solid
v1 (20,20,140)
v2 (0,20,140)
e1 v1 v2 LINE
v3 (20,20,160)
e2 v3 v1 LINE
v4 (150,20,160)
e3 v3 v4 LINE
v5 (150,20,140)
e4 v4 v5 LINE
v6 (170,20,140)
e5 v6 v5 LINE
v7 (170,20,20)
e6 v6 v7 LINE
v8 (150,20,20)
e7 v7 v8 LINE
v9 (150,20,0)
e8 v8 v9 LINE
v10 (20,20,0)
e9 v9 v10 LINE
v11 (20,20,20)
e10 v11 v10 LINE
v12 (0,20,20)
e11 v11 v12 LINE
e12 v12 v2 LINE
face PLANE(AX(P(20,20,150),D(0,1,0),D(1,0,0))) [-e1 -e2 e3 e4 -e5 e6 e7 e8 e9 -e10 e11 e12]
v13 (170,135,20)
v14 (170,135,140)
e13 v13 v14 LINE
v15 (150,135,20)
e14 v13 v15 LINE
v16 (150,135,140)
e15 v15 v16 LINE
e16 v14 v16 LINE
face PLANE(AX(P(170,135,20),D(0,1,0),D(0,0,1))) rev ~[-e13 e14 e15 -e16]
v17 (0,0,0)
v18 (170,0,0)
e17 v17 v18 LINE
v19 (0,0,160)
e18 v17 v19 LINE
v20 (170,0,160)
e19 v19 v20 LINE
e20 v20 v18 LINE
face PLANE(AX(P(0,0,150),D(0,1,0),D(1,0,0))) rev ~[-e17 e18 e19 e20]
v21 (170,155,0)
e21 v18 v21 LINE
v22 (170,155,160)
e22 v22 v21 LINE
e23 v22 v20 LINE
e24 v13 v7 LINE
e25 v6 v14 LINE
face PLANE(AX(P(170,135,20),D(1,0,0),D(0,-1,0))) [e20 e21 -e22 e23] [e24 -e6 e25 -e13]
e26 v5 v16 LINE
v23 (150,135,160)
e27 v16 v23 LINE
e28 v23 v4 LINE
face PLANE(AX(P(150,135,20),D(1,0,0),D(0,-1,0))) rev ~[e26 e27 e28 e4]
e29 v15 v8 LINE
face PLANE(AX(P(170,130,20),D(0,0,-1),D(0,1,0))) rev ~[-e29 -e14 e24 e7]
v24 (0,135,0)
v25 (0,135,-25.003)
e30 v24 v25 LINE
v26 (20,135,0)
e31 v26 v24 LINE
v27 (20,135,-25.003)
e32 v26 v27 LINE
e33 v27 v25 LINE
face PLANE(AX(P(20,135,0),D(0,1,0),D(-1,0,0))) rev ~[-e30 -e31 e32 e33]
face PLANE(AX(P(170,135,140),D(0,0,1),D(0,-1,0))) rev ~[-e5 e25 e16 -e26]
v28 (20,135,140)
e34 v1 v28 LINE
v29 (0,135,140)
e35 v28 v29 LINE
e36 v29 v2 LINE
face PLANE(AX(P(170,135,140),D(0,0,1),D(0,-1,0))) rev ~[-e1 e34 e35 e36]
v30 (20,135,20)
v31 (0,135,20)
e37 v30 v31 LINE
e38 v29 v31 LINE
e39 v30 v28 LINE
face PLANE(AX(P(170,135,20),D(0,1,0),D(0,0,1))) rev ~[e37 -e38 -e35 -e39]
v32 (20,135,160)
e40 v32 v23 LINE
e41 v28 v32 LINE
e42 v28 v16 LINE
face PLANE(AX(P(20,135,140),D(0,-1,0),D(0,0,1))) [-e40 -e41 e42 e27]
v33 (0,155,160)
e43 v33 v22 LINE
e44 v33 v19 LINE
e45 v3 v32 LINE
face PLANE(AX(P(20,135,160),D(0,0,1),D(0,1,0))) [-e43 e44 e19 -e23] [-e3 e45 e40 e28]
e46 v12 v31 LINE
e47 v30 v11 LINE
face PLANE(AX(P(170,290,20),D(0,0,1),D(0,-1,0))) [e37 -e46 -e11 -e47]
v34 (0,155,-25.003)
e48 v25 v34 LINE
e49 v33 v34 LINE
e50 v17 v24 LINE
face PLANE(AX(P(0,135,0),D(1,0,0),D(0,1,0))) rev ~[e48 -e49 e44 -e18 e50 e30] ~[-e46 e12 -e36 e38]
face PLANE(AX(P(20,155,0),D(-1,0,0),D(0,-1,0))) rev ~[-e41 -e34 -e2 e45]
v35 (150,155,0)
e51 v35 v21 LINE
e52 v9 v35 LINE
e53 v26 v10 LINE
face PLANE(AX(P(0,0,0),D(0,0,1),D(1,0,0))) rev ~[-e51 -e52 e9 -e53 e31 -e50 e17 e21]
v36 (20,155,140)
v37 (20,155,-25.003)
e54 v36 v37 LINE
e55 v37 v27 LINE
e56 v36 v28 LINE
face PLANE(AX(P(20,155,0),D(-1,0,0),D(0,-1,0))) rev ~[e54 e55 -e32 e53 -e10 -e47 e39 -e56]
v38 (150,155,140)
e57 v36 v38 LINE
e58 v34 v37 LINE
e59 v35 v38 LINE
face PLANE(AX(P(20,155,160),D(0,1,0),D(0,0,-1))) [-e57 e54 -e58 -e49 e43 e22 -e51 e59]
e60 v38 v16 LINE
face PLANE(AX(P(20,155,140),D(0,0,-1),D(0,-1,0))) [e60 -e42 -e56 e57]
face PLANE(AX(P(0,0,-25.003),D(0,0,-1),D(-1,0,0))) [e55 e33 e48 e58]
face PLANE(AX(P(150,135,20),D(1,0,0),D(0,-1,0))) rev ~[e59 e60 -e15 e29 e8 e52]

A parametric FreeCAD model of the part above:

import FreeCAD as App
import Part
import Sketcher


def add_polygon(sketch, points):
    """Adds a closed chain of lines whose ends are joined by coincident constraints."""
    first, n = sketch.GeometryCount, len(points)
    for a, b in zip(points, points[1:] + points[:1]):
        sketch.addGeometry(Part.LineSegment(App.Vector(*a, 0), App.Vector(*b, 0)), False)
    for i in range(n):
        sketch.addConstraint(Sketcher.Constraint("Coincident", first + i, 2, first + (i + 1) % n, 1))

doc = App.newDocument("Part")
body = doc.addObject("PartDesign::Body", "Body")

# Sketch on XY plane
sketch1 = body.newObject("Sketcher::SketchObject", "Sketch")
sketch1.AttachmentSupport = (doc.getObject("XY_Plane"), [""])
sketch1.MapMode = "FlatFace"
add_polygon(sketch1, [(0, 310), (0, 0), (170, 0), (170, 310)])  # lines 0-3
sketch1.addConstraint(Sketcher.Constraint("Vertical", 0))
sketch1.addConstraint(Sketcher.Constraint("Horizontal", 1))
sketch1.addConstraint(Sketcher.Constraint("Vertical", 2))
sketch1.addConstraint(Sketcher.Constraint("Horizontal", 3))
sketch1.addConstraint(Sketcher.Constraint("Coincident", 0, 2, -1, 1))
sketch1.addConstraint(Sketcher.Constraint("DistanceX", 1, 1, 1, 2, 170.0))
sketch1.addConstraint(Sketcher.Constraint("DistanceY", 0, 2, 0, 1, 310.0))
pad1 = body.newObject("PartDesign::Pad", "Pad")
pad1.Profile = sketch1
pad1.Length = 150

# Sketch on YZ plane
sketch2 = body.newObject("Sketcher::SketchObject", "Sketch001")
sketch2.AttachmentSupport = (doc.getObject("YZ_Plane"), [""])
sketch2.MapMode = "FlatFace"
sketch2.AttachmentOffset = App.Placement(App.Vector(0, 0, 170), App.Rotation())
add_polygon(sketch2, [(290, 20), (290, 130), (20, 130), (20, 20)])  # lines 0-3
sketch2.addConstraint(Sketcher.Constraint("Vertical", 0))
sketch2.addConstraint(Sketcher.Constraint("Horizontal", 1))
sketch2.addConstraint(Sketcher.Constraint("Vertical", 2))
sketch2.addConstraint(Sketcher.Constraint("Horizontal", 3))
sketch2.addConstraint(Sketcher.Constraint("DistanceX", -1, 1, 1, 2, 20.0))
sketch2.addConstraint(Sketcher.Constraint("DistanceY", -1, 1, 2, 2, 20.0))
sketch2.addConstraint(Sketcher.Constraint("DistanceX", 1, 2, 1, 1, 270.0))
sketch2.addConstraint(Sketcher.Constraint("DistanceY", 0, 1, 0, 2, 110.0))
pocket1 = body.newObject("PartDesign::Pocket", "Pocket")
pocket1.Profile = sketch2
pocket1.Length = 900

# Sketch on XY plane
sketch3 = body.newObject("Sketcher::SketchObject", "Sketch002")
sketch3.AttachmentSupport = (doc.getObject("XY_Plane"), [""])
sketch3.MapMode = "FlatFace"
sketch3.AttachmentOffset = App.Placement(App.Vector(0, 0, 150), App.Rotation())
add_polygon(sketch3, [(150, 290), (20, 290), (20, 20), (150, 20)])  # lines 0-3
sketch3.addConstraint(Sketcher.Constraint("Horizontal", 0))
sketch3.addConstraint(Sketcher.Constraint("Vertical", 1))
sketch3.addConstraint(Sketcher.Constraint("Horizontal", 2))
sketch3.addConstraint(Sketcher.Constraint("Vertical", 3))
sketch3.addConstraint(Sketcher.Constraint("DistanceX", -1, 1, 0, 2, 20.0))
sketch3.addConstraint(Sketcher.Constraint("DistanceY", -1, 1, 1, 2, 20.0))
sketch3.addConstraint(Sketcher.Constraint("DistanceX", 0, 2, 0, 1, 130.0))
sketch3.addConstraint(Sketcher.Constraint("DistanceY", 1, 2, 1, 1, 270.0))
pocket2 = body.newObject("PartDesign::Pocket", "Pocket001")
pocket2.Profile = sketch3
pocket2.Length = 900

# Sketch on XZ plane
sketch4 = body.newObject("Sketcher::SketchObject", "Sketch003")
sketch4.AttachmentSupport = (doc.getObject("XZ_Plane"), [""])
sketch4.MapMode = "FlatFace"
sketch4.AttachmentOffset = App.Placement(App.Vector(0, 0, -310), App.Rotation())
add_polygon(sketch4, [(150, 20), (20, 20), (20, 130), (150, 130)])  # lines 0-3
sketch4.addConstraint(Sketcher.Constraint("Horizontal", 0))
sketch4.addConstraint(Sketcher.Constraint("Vertical", 1))
sketch4.addConstraint(Sketcher.Constraint("Horizontal", 2))
sketch4.addConstraint(Sketcher.Constraint("Vertical", 3))
sketch4.addConstraint(Sketcher.Constraint("DistanceX", -1, 1, 0, 2, 20.0))
sketch4.addConstraint(Sketcher.Constraint("DistanceY", -1, 1, 0, 2, 20.0))
sketch4.addConstraint(Sketcher.Constraint("DistanceX", 0, 2, 0, 1, 130.0))
sketch4.addConstraint(Sketcher.Constraint("DistanceY", 1, 1, 1, 2, 110.0))
pocket3 = body.newObject("PartDesign::Pocket", "Pocket002")
pocket3.Profile = sketch4
pocket3.Length = 40
pocket3.Reversed = True

# Sketch on YZ plane
sketch5 = body.newObject("Sketcher::SketchObject", "Sketch004")
sketch5.AttachmentSupport = (doc.getObject("YZ_Plane"), [""])
sketch5.MapMode = "FlatFace"
sketch5.AttachmentOffset = App.Placement(App.Vector(0, 0, 170), App.Rotation())
add_polygon(sketch5, [(310, 150), (135, 150), (135, 0), (310, 0)])  # lines 0-3
sketch5.addConstraint(Sketcher.Constraint("Horizontal", 0))
sketch5.addConstraint(Sketcher.Constraint("Vertical", 1))
sketch5.addConstraint(Sketcher.Constraint("Horizontal", 2))
sketch5.addConstraint(Sketcher.Constraint("Vertical", 3))
sketch5.addConstraint(Sketcher.Constraint("PointOnObject", 1, 2, -1))
sketch5.addConstraint(Sketcher.Constraint("DistanceX", 0, 2, 0, 1, 175.0))
sketch5.addConstraint(Sketcher.Constraint("DistanceY", 1, 2, 1, 1, 150.0))
sketch5.addConstraint(Sketcher.Constraint("DistanceX", -1, 1, 0, 2, 135.0))
pocket4 = body.newObject("PartDesign::Pocket", "Pocket003")
pocket4.Profile = sketch5
pocket4.Type = "ThroughAll"

# Sketch on XY plane
sketch6 = body.newObject("Sketcher::SketchObject", "Sketch005")
sketch6.AttachmentSupport = (doc.getObject("XY_Plane"), [""])
sketch6.MapMode = "FlatFace"
sketch6.AttachmentOffset = App.Placement(App.Vector(0, 0, 150), App.Rotation())
add_polygon(sketch6, [(20, 20), (20, 135), (0, 135), (0, 0), (170, 0), (170, 135), (150, 135), (150, 20)])  # lines 0-7
sketch6.addConstraint(Sketcher.Constraint("Vertical", 0))
sketch6.addConstraint(Sketcher.Constraint("Horizontal", 1))
sketch6.addConstraint(Sketcher.Constraint("Vertical", 2))
sketch6.addConstraint(Sketcher.Constraint("Horizontal", 3))
sketch6.addConstraint(Sketcher.Constraint("Vertical", 4))
sketch6.addConstraint(Sketcher.Constraint("Horizontal", 5))
sketch6.addConstraint(Sketcher.Constraint("Vertical", 6))
sketch6.addConstraint(Sketcher.Constraint("Horizontal", 7))
sketch6.addConstraint(Sketcher.Constraint("Coincident", 2, 2, -1, 1))
sketch6.addConstraint(Sketcher.Constraint("Horizontal", 1, 2, 4, 2))
sketch6.addConstraint(Sketcher.Constraint("Equal", 1, 5))
sketch6.addConstraint(Sketcher.Constraint("DistanceX", 1, 2, 1, 1, 20.0))
sketch6.addConstraint(Sketcher.Constraint("DistanceX", 3, 1, 3, 2, 170.0))
sketch6.addConstraint(Sketcher.Constraint("DistanceY", 0, 1, 0, 2, 115.0))
sketch6.addConstraint(Sketcher.Constraint("DistanceY", 2, 2, 2, 1, 135.0))
pad2 = body.newObject("PartDesign::Pad", "Pad001")
pad2.Profile = sketch6
pad2.Length = 10

# Sketch on YZ plane
sketch7 = body.newObject("Sketcher::SketchObject", "Sketch006")
sketch7.AttachmentSupport = (doc.getObject("YZ_Plane"), [""])
sketch7.MapMode = "FlatFace"
sketch7.AttachmentOffset = App.Placement(App.Vector(0, 0, 170), App.Rotation())
add_polygon(sketch7, [(20, 130), (135, 130), (135, 140), (20, 140)])  # lines 0-3
sketch7.addConstraint(Sketcher.Constraint("Horizontal", 0))
sketch7.addConstraint(Sketcher.Constraint("Vertical", 1))
sketch7.addConstraint(Sketcher.Constraint("Horizontal", 2))
sketch7.addConstraint(Sketcher.Constraint("Vertical", 3))
sketch7.addConstraint(Sketcher.Constraint("DistanceY", 1, 1, 1, 2, 10.0))
sketch7.addConstraint(Sketcher.Constraint("DistanceX", 0, 1, 0, 2, 115.0))
sketch7.addConstraint(Sketcher.Constraint("DistanceX", -1, 1, 0, 2, 135.0))
sketch7.addConstraint(Sketcher.Constraint("DistanceY", -1, 1, 0, 2, 130.0))
pocket5 = body.newObject("PartDesign::Pocket", "Pocket004")
pocket5.Profile = sketch7
pocket5.Type = "ThroughAll"

# Sketch on XY plane
sketch8 = body.newObject("Sketcher::SketchObject", "Sketch007")
sketch8.AttachmentSupport = (doc.getObject("XY_Plane"), [""])
sketch8.MapMode = "FlatFace"
sketch8.AttachmentOffset = App.Placement(App.Vector(0, 0, 20), App.Rotation())
add_polygon(sketch8, [(20, 115), (20, 135), (0, 135), (0, 115)])  # lines 0-3
sketch8.addConstraint(Sketcher.Constraint("Vertical", 0))
sketch8.addConstraint(Sketcher.Constraint("Horizontal", 1))
sketch8.addConstraint(Sketcher.Constraint("Vertical", 2))
sketch8.addConstraint(Sketcher.Constraint("Horizontal", 3))
sketch8.addConstraint(Sketcher.Constraint("PointOnObject", 1, 2, -2))
sketch8.addConstraint(Sketcher.Constraint("Equal", 3, 0))
sketch8.addConstraint(Sketcher.Constraint("DistanceX", 1, 2, 1, 1, 20.0))
sketch8.addConstraint(Sketcher.Constraint("DistanceY", -1, 1, 0, 2, 135.0))
pad3 = body.newObject("PartDesign::Pad", "Pad002")
pad3.Profile = sketch8
pad3.Length = 120

# Sketch on XY plane
sketch9 = body.newObject("Sketcher::SketchObject", "Sketch008")
sketch9.AttachmentSupport = (doc.getObject("XY_Plane"), [""])
sketch9.MapMode = "FlatFace"
sketch9.AttachmentOffset = App.Placement(App.Vector(0, 0, 20), App.Rotation())
add_polygon(sketch9, [(170, 115), (170, 135), (150, 135), (150, 115)])  # lines 0-3
sketch9.addConstraint(Sketcher.Constraint("Vertical", 0))
sketch9.addConstraint(Sketcher.Constraint("Horizontal", 1))
sketch9.addConstraint(Sketcher.Constraint("Vertical", 2))
sketch9.addConstraint(Sketcher.Constraint("Horizontal", 3))
sketch9.addConstraint(Sketcher.Constraint("Equal", 3, 0))
sketch9.addConstraint(Sketcher.Constraint("DistanceX", 1, 2, 1, 1, 20.0))
sketch9.addConstraint(Sketcher.Constraint("DistanceX", -1, 1, 0, 2, 170.0))
sketch9.addConstraint(Sketcher.Constraint("DistanceY", -1, 1, 0, 2, 135.0))
pad4 = body.newObject("PartDesign::Pad", "Pad003")
pad4.Profile = sketch9
pad4.Length = 120

# Sketch on XZ plane
sketch10 = body.newObject("Sketcher::SketchObject", "Sketch009")
sketch10.AttachmentSupport = (doc.getObject("XZ_Plane"), [""])
sketch10.MapMode = "FlatFace"
sketch10.AttachmentOffset = App.Placement(App.Vector(0, 0, -135), App.Rotation())
add_polygon(sketch10, [(170, 0), (150, 0), (150, 160), (170, 160)])  # lines 0-3
add_polygon(sketch10, [(0, 0), (0, 160), (20, 160), (20, 0)])  # lines 4-7
sketch10.addConstraint(Sketcher.Constraint("Horizontal", 0))
sketch10.addConstraint(Sketcher.Constraint("Vertical", 1))
sketch10.addConstraint(Sketcher.Constraint("Horizontal", 2))
sketch10.addConstraint(Sketcher.Constraint("Vertical", 3))
sketch10.addConstraint(Sketcher.Constraint("Vertical", 4))
sketch10.addConstraint(Sketcher.Constraint("Horizontal", 5))
sketch10.addConstraint(Sketcher.Constraint("Vertical", 6))
sketch10.addConstraint(Sketcher.Constraint("Horizontal", 7))
sketch10.addConstraint(Sketcher.Constraint("Coincident", 7, 2, -1, 1))
sketch10.addConstraint(Sketcher.Constraint("PointOnObject", 0, 2, -1))
sketch10.addConstraint(Sketcher.Constraint("Horizontal", 2, 2, 4, 2))
sketch10.addConstraint(Sketcher.Constraint("Equal", 2, 5))
sketch10.addConstraint(Sketcher.Constraint("DistanceX", 0, 2, 0, 1, 20.0))
sketch10.addConstraint(Sketcher.Constraint("DistanceY", 1, 1, 1, 2, 160.0))
sketch10.addConstraint(Sketcher.Constraint("DistanceX", -1, 1, 0, 2, 150.0))
pad5 = body.newObject("PartDesign::Pad", "Pad004")
pad5.Profile = sketch10
pad5.Length = 10
pad5.Reversed = True

# Sketch on YZ plane
sketch11 = body.newObject("Sketcher::SketchObject", "Sketch010")
sketch11.AttachmentSupport = (doc.getObject("YZ_Plane"), [""])
sketch11.MapMode = "FlatFace"
sketch11.AttachmentOffset = App.Placement(App.Vector(0, 0, 170), App.Rotation())
add_polygon(sketch11, [(115, 140), (115, 20), (125, 20), (125, 140)])  # lines 0-3
sketch11.addConstraint(Sketcher.Constraint("Vertical", 0))
sketch11.addConstraint(Sketcher.Constraint("Horizontal", 1))
sketch11.addConstraint(Sketcher.Constraint("Vertical", 2))
sketch11.addConstraint(Sketcher.Constraint("Horizontal", 3))
sketch11.addConstraint(Sketcher.Constraint("DistanceX", 1, 1, 1, 2, 10.0))
sketch11.addConstraint(Sketcher.Constraint("DistanceY", 0, 2, 0, 1, 120.0))
sketch11.addConstraint(Sketcher.Constraint("DistanceX", -1, 1, 0, 2, 115.0))
sketch11.addConstraint(Sketcher.Constraint("DistanceY", -1, 1, 0, 2, 20.0))
pocket6 = body.newObject("PartDesign::Pocket", "Pocket005")
pocket6.Profile = sketch11
pocket6.Type = "ThroughAll"

# Sketch on XZ plane
sketch12 = body.newObject("Sketcher::SketchObject", "Sketch011")
sketch12.AttachmentSupport = (doc.getObject("XZ_Plane"), [""])
sketch12.MapMode = "FlatFace"
sketch12.AttachmentOffset = App.Placement(App.Vector(0, 0, -145), App.Rotation())
add_polygon(sketch12, [(0, 160), (20, 160), (20, 0), (0, 0)])  # lines 0-3
add_polygon(sketch12, [(170, 160), (170, 0), (150, 0), (150, 160)])  # lines 4-7
sketch12.addConstraint(Sketcher.Constraint("Horizontal", 0))
sketch12.addConstraint(Sketcher.Constraint("Vertical", 1))
sketch12.addConstraint(Sketcher.Constraint("Horizontal", 2))
sketch12.addConstraint(Sketcher.Constraint("Vertical", 3))
sketch12.addConstraint(Sketcher.Constraint("Vertical", 4))
sketch12.addConstraint(Sketcher.Constraint("Horizontal", 5))
sketch12.addConstraint(Sketcher.Constraint("Vertical", 6))
sketch12.addConstraint(Sketcher.Constraint("Horizontal", 7))
sketch12.addConstraint(Sketcher.Constraint("Coincident", 2, 2, -1, 1))
sketch12.addConstraint(Sketcher.Constraint("PointOnObject", 4, 2, -1))
sketch12.addConstraint(Sketcher.Constraint("Horizontal", 3, 2, 6, 2))
sketch12.addConstraint(Sketcher.Constraint("Equal", 2, 5))
sketch12.addConstraint(Sketcher.Constraint("DistanceX", 0, 1, 0, 2, 20.0))
sketch12.addConstraint(Sketcher.Constraint("DistanceY", 1, 2, 1, 1, 160.0))
sketch12.addConstraint(Sketcher.Constraint("DistanceX", -1, 1, 4, 2, 170.0))
pad6 = body.newObject("PartDesign::Pad", "Pad005")
pad6.Profile = sketch12
pad6.Length = 5
pad6.Reversed = True

# Sketch on YZ plane
sketch13 = body.newObject("Sketcher::SketchObject", "Sketch012")
sketch13.AttachmentSupport = (doc.getObject("YZ_Plane"), [""])
sketch13.MapMode = "FlatFace"
sketch13.AttachmentOffset = App.Placement(App.Vector(0, 0, 170), App.Rotation())
add_polygon(sketch13, [(130, 140), (125, 140), (125, 20), (130, 20)])  # lines 0-3
sketch13.addConstraint(Sketcher.Constraint("Horizontal", 0))
sketch13.addConstraint(Sketcher.Constraint("Vertical", 1))
sketch13.addConstraint(Sketcher.Constraint("Horizontal", 2))
sketch13.addConstraint(Sketcher.Constraint("Vertical", 3))
sketch13.addConstraint(Sketcher.Constraint("DistanceX", 0, 2, 0, 1, 5.0))
sketch13.addConstraint(Sketcher.Constraint("DistanceY", 1, 2, 1, 1, 120.0))
sketch13.addConstraint(Sketcher.Constraint("DistanceX", -1, 1, 0, 2, 125.0))
sketch13.addConstraint(Sketcher.Constraint("DistanceY", -1, 1, 0, 2, 140.0))
pocket7 = body.newObject("PartDesign::Pocket", "Pocket006")
pocket7.Profile = sketch13
pocket7.Type = "ThroughAll"

# Sketch on XZ plane
sketch14 = body.newObject("Sketcher::SketchObject", "Sketch013")
sketch14.AttachmentSupport = (doc.getObject("XZ_Plane"), [""])
sketch14.MapMode = "FlatFace"
sketch14.AttachmentOffset = App.Placement(App.Vector(0, 0, -150), App.Rotation())
add_polygon(sketch14, [(0, 160), (20, 160), (20, 0), (0, 0)])  # lines 0-3
add_polygon(sketch14, [(150, 0), (150, 160), (170, 160), (170, 0)])  # lines 4-7
sketch14.addConstraint(Sketcher.Constraint("Horizontal", 0))
sketch14.addConstraint(Sketcher.Constraint("Vertical", 1))
sketch14.addConstraint(Sketcher.Constraint("Horizontal", 2))
sketch14.addConstraint(Sketcher.Constraint("Vertical", 3))
sketch14.addConstraint(Sketcher.Constraint("Vertical", 4))
sketch14.addConstraint(Sketcher.Constraint("Horizontal", 5))
sketch14.addConstraint(Sketcher.Constraint("Vertical", 6))
sketch14.addConstraint(Sketcher.Constraint("Horizontal", 7))
sketch14.addConstraint(Sketcher.Constraint("Coincident", 2, 2, -1, 1))
sketch14.addConstraint(Sketcher.Constraint("PointOnObject", 6, 2, -1))
sketch14.addConstraint(Sketcher.Constraint("Horizontal", 3, 2, 4, 2))
sketch14.addConstraint(Sketcher.Constraint("Equal", 2, 5))
sketch14.addConstraint(Sketcher.Constraint("DistanceX", 0, 1, 0, 2, 20.0))
sketch14.addConstraint(Sketcher.Constraint("DistanceY", 1, 2, 1, 1, 160.0))
sketch14.addConstraint(Sketcher.Constraint("DistanceX", -1, 1, 4, 2, 150.0))
pad7 = body.newObject("PartDesign::Pad", "Pad006")
pad7.Profile = sketch14
pad7.Length = 5
pad7.Reversed = True

# Sketch on YZ plane
sketch15 = body.newObject("Sketcher::SketchObject", "Sketch014")
sketch15.AttachmentSupport = (doc.getObject("YZ_Plane"), [""])
sketch15.MapMode = "FlatFace"
sketch15.AttachmentOffset = App.Placement(App.Vector(0, 0, 170), App.Rotation())
add_polygon(sketch15, [(135, 140), (130, 140), (130, 20), (135, 20)])  # lines 0-3
sketch15.addConstraint(Sketcher.Constraint("Horizontal", 0))
sketch15.addConstraint(Sketcher.Constraint("Vertical", 1))
sketch15.addConstraint(Sketcher.Constraint("Horizontal", 2))
sketch15.addConstraint(Sketcher.Constraint("Vertical", 3))
sketch15.addConstraint(Sketcher.Constraint("DistanceX", 0, 2, 0, 1, 5.0))
sketch15.addConstraint(Sketcher.Constraint("DistanceY", 1, 2, 1, 1, 120.0))
sketch15.addConstraint(Sketcher.Constraint("DistanceX", -1, 1, 0, 2, 130.0))
sketch15.addConstraint(Sketcher.Constraint("DistanceY", -1, 1, 0, 2, 140.0))
pocket8 = body.newObject("PartDesign::Pocket", "Pocket007")
pocket8.Profile = sketch15
pocket8.Type = "ThroughAll"

# Sketch on XY plane
sketch16 = body.newObject("Sketcher::SketchObject", "Sketch015")
sketch16.AttachmentSupport = (doc.getObject("XY_Plane"), [""])
sketch16.MapMode = "FlatFace"
add_polygon(sketch16, [(0, 135), (0, 155), (20, 155), (20, 135)])  # lines 0-3
sketch16.addConstraint(Sketcher.Constraint("Vertical", 0))
sketch16.addConstraint(Sketcher.Constraint("Horizontal", 1))
sketch16.addConstraint(Sketcher.Constraint("Vertical", 2))
sketch16.addConstraint(Sketcher.Constraint("Horizontal", 3))
sketch16.addConstraint(Sketcher.Constraint("PointOnObject", 0, 2, -2))
sketch16.addConstraint(Sketcher.Constraint("Equal", 3, 0))
sketch16.addConstraint(Sketcher.Constraint("DistanceX", 1, 1, 1, 2, 20.0))
sketch16.addConstraint(Sketcher.Constraint("DistanceY", -1, 1, 0, 2, 155.0))
pad8 = body.newObject("PartDesign::Pad", "Pad007")
pad8.Profile = sketch16
pad8.Length = 25.003
pad8.Reversed = True

# Sketch on YZ plane
sketch17 = body.newObject("Sketcher::SketchObject", "Sketch016")
sketch17.AttachmentSupport = (doc.getObject("YZ_Plane"), [""])
sketch17.MapMode = "FlatFace"
sketch17.AttachmentOffset = App.Placement(App.Vector(0, 0, 20), App.Rotation())
add_polygon(sketch17, [(155, 140), (155, 160), (135, 160), (135, 140)])  # lines 0-3
sketch17.addConstraint(Sketcher.Constraint("Vertical", 0))
sketch17.addConstraint(Sketcher.Constraint("Horizontal", 1))
sketch17.addConstraint(Sketcher.Constraint("Vertical", 2))
sketch17.addConstraint(Sketcher.Constraint("Horizontal", 3))
sketch17.addConstraint(Sketcher.Constraint("Equal", 3, 0))
sketch17.addConstraint(Sketcher.Constraint("DistanceX", 1, 2, 1, 1, 20.0))
sketch17.addConstraint(Sketcher.Constraint("DistanceX", -1, 1, 0, 2, 155.0))
sketch17.addConstraint(Sketcher.Constraint("DistanceY", -1, 1, 0, 2, 160.0))
pad9 = body.newObject("PartDesign::Pad", "Pad008")
pad9.Profile = sketch17
pad9.Length = 130

doc.recompute()
